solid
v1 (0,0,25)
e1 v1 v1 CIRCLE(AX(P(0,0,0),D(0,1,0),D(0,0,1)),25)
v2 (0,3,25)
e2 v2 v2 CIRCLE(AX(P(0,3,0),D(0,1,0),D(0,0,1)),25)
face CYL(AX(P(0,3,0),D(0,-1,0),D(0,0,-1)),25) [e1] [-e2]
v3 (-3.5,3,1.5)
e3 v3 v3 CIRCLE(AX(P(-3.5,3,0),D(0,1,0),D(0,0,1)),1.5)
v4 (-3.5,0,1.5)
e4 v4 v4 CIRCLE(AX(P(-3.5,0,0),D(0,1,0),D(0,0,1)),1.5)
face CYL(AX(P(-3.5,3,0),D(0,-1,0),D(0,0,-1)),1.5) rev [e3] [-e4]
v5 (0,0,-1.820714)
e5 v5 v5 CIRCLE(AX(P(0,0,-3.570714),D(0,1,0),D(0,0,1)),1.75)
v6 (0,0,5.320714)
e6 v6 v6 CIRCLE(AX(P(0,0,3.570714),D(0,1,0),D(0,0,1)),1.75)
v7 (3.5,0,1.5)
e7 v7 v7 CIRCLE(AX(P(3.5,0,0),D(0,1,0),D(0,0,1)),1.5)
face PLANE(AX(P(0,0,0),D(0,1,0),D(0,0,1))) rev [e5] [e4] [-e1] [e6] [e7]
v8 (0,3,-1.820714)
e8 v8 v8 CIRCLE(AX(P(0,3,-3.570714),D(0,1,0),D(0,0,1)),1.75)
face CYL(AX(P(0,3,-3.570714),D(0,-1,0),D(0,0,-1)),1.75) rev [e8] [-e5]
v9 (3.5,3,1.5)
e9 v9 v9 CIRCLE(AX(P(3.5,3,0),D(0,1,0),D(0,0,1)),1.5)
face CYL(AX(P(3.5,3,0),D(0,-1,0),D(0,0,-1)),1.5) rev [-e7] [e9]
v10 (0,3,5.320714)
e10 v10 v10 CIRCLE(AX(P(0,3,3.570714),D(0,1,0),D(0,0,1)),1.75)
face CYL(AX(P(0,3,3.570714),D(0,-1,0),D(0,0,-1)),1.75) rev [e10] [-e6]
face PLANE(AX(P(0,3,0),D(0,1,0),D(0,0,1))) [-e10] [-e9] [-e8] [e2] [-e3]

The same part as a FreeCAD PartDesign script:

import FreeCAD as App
import Part
import Sketcher

V = App.Vector
Q = App.Units.Quantity

doc = App.newDocument("Part")
body = doc.addObject("PartDesign::Body", "Body")

sketch1 = body.newObject("Sketcher::SketchObject", "Sketch")
sketch1.AttachmentSupport = (doc.getObject("XZ_Plane"), [""])
sketch1.MapMode = "FlatFace"
sketch1.addGeometry([
    Part.Circle(V(0, 0, 0), V(0, 0, 1), 25),
    Part.Circle(V(0, 3.6, 0), V(0, 0, 1), 1.8),
    Part.Circle(V(-3.5, 0, 0), V(0, 0, 1), 1.5),
    Part.Circle(V(3.5, 0, 0), V(0, 0, 1), 1.5),
    Part.Circle(V(0, -3.6, 0), V(0, 0, 1), 1.8),
], False)
sketch1.addConstraint([
    Sketcher.Constraint("Coincident", 0, 3, -1, 1),
    Sketcher.Constraint("Equal", 2, 3),
    Sketcher.Constraint("Equal", 1, 4),
    Sketcher.Constraint("Symmetric", 2, 3, 3, 3, -1, 1),
    Sketcher.Constraint("Symmetric", 1, 3, 4, 3, -1, 1),
    Sketcher.Constraint("PointOnObject", 1, 3, -2),
    Sketcher.Constraint("PointOnObject", 2, 3, -1),
    Sketcher.Constraint("Diameter", 0, Q("50 mm")),
    Sketcher.Constraint("Diameter", 2, Q("3 mm")),
    Sketcher.Constraint("Diameter", 1, Q("3.5 mm")),
    Sketcher.Constraint("DistanceX", 2, 3, 3, 3, Q("7 mm")),
    Sketcher.Constraint("DistanceY", 4, 3, 1, 3, Q("7.141428 mm")),
])
pad1 = body.newObject("PartDesign::Pad", "Pad")
pad1.Profile = sketch1
pad1.Length = 3
pad1.Reversed = True

doc.recompute()
